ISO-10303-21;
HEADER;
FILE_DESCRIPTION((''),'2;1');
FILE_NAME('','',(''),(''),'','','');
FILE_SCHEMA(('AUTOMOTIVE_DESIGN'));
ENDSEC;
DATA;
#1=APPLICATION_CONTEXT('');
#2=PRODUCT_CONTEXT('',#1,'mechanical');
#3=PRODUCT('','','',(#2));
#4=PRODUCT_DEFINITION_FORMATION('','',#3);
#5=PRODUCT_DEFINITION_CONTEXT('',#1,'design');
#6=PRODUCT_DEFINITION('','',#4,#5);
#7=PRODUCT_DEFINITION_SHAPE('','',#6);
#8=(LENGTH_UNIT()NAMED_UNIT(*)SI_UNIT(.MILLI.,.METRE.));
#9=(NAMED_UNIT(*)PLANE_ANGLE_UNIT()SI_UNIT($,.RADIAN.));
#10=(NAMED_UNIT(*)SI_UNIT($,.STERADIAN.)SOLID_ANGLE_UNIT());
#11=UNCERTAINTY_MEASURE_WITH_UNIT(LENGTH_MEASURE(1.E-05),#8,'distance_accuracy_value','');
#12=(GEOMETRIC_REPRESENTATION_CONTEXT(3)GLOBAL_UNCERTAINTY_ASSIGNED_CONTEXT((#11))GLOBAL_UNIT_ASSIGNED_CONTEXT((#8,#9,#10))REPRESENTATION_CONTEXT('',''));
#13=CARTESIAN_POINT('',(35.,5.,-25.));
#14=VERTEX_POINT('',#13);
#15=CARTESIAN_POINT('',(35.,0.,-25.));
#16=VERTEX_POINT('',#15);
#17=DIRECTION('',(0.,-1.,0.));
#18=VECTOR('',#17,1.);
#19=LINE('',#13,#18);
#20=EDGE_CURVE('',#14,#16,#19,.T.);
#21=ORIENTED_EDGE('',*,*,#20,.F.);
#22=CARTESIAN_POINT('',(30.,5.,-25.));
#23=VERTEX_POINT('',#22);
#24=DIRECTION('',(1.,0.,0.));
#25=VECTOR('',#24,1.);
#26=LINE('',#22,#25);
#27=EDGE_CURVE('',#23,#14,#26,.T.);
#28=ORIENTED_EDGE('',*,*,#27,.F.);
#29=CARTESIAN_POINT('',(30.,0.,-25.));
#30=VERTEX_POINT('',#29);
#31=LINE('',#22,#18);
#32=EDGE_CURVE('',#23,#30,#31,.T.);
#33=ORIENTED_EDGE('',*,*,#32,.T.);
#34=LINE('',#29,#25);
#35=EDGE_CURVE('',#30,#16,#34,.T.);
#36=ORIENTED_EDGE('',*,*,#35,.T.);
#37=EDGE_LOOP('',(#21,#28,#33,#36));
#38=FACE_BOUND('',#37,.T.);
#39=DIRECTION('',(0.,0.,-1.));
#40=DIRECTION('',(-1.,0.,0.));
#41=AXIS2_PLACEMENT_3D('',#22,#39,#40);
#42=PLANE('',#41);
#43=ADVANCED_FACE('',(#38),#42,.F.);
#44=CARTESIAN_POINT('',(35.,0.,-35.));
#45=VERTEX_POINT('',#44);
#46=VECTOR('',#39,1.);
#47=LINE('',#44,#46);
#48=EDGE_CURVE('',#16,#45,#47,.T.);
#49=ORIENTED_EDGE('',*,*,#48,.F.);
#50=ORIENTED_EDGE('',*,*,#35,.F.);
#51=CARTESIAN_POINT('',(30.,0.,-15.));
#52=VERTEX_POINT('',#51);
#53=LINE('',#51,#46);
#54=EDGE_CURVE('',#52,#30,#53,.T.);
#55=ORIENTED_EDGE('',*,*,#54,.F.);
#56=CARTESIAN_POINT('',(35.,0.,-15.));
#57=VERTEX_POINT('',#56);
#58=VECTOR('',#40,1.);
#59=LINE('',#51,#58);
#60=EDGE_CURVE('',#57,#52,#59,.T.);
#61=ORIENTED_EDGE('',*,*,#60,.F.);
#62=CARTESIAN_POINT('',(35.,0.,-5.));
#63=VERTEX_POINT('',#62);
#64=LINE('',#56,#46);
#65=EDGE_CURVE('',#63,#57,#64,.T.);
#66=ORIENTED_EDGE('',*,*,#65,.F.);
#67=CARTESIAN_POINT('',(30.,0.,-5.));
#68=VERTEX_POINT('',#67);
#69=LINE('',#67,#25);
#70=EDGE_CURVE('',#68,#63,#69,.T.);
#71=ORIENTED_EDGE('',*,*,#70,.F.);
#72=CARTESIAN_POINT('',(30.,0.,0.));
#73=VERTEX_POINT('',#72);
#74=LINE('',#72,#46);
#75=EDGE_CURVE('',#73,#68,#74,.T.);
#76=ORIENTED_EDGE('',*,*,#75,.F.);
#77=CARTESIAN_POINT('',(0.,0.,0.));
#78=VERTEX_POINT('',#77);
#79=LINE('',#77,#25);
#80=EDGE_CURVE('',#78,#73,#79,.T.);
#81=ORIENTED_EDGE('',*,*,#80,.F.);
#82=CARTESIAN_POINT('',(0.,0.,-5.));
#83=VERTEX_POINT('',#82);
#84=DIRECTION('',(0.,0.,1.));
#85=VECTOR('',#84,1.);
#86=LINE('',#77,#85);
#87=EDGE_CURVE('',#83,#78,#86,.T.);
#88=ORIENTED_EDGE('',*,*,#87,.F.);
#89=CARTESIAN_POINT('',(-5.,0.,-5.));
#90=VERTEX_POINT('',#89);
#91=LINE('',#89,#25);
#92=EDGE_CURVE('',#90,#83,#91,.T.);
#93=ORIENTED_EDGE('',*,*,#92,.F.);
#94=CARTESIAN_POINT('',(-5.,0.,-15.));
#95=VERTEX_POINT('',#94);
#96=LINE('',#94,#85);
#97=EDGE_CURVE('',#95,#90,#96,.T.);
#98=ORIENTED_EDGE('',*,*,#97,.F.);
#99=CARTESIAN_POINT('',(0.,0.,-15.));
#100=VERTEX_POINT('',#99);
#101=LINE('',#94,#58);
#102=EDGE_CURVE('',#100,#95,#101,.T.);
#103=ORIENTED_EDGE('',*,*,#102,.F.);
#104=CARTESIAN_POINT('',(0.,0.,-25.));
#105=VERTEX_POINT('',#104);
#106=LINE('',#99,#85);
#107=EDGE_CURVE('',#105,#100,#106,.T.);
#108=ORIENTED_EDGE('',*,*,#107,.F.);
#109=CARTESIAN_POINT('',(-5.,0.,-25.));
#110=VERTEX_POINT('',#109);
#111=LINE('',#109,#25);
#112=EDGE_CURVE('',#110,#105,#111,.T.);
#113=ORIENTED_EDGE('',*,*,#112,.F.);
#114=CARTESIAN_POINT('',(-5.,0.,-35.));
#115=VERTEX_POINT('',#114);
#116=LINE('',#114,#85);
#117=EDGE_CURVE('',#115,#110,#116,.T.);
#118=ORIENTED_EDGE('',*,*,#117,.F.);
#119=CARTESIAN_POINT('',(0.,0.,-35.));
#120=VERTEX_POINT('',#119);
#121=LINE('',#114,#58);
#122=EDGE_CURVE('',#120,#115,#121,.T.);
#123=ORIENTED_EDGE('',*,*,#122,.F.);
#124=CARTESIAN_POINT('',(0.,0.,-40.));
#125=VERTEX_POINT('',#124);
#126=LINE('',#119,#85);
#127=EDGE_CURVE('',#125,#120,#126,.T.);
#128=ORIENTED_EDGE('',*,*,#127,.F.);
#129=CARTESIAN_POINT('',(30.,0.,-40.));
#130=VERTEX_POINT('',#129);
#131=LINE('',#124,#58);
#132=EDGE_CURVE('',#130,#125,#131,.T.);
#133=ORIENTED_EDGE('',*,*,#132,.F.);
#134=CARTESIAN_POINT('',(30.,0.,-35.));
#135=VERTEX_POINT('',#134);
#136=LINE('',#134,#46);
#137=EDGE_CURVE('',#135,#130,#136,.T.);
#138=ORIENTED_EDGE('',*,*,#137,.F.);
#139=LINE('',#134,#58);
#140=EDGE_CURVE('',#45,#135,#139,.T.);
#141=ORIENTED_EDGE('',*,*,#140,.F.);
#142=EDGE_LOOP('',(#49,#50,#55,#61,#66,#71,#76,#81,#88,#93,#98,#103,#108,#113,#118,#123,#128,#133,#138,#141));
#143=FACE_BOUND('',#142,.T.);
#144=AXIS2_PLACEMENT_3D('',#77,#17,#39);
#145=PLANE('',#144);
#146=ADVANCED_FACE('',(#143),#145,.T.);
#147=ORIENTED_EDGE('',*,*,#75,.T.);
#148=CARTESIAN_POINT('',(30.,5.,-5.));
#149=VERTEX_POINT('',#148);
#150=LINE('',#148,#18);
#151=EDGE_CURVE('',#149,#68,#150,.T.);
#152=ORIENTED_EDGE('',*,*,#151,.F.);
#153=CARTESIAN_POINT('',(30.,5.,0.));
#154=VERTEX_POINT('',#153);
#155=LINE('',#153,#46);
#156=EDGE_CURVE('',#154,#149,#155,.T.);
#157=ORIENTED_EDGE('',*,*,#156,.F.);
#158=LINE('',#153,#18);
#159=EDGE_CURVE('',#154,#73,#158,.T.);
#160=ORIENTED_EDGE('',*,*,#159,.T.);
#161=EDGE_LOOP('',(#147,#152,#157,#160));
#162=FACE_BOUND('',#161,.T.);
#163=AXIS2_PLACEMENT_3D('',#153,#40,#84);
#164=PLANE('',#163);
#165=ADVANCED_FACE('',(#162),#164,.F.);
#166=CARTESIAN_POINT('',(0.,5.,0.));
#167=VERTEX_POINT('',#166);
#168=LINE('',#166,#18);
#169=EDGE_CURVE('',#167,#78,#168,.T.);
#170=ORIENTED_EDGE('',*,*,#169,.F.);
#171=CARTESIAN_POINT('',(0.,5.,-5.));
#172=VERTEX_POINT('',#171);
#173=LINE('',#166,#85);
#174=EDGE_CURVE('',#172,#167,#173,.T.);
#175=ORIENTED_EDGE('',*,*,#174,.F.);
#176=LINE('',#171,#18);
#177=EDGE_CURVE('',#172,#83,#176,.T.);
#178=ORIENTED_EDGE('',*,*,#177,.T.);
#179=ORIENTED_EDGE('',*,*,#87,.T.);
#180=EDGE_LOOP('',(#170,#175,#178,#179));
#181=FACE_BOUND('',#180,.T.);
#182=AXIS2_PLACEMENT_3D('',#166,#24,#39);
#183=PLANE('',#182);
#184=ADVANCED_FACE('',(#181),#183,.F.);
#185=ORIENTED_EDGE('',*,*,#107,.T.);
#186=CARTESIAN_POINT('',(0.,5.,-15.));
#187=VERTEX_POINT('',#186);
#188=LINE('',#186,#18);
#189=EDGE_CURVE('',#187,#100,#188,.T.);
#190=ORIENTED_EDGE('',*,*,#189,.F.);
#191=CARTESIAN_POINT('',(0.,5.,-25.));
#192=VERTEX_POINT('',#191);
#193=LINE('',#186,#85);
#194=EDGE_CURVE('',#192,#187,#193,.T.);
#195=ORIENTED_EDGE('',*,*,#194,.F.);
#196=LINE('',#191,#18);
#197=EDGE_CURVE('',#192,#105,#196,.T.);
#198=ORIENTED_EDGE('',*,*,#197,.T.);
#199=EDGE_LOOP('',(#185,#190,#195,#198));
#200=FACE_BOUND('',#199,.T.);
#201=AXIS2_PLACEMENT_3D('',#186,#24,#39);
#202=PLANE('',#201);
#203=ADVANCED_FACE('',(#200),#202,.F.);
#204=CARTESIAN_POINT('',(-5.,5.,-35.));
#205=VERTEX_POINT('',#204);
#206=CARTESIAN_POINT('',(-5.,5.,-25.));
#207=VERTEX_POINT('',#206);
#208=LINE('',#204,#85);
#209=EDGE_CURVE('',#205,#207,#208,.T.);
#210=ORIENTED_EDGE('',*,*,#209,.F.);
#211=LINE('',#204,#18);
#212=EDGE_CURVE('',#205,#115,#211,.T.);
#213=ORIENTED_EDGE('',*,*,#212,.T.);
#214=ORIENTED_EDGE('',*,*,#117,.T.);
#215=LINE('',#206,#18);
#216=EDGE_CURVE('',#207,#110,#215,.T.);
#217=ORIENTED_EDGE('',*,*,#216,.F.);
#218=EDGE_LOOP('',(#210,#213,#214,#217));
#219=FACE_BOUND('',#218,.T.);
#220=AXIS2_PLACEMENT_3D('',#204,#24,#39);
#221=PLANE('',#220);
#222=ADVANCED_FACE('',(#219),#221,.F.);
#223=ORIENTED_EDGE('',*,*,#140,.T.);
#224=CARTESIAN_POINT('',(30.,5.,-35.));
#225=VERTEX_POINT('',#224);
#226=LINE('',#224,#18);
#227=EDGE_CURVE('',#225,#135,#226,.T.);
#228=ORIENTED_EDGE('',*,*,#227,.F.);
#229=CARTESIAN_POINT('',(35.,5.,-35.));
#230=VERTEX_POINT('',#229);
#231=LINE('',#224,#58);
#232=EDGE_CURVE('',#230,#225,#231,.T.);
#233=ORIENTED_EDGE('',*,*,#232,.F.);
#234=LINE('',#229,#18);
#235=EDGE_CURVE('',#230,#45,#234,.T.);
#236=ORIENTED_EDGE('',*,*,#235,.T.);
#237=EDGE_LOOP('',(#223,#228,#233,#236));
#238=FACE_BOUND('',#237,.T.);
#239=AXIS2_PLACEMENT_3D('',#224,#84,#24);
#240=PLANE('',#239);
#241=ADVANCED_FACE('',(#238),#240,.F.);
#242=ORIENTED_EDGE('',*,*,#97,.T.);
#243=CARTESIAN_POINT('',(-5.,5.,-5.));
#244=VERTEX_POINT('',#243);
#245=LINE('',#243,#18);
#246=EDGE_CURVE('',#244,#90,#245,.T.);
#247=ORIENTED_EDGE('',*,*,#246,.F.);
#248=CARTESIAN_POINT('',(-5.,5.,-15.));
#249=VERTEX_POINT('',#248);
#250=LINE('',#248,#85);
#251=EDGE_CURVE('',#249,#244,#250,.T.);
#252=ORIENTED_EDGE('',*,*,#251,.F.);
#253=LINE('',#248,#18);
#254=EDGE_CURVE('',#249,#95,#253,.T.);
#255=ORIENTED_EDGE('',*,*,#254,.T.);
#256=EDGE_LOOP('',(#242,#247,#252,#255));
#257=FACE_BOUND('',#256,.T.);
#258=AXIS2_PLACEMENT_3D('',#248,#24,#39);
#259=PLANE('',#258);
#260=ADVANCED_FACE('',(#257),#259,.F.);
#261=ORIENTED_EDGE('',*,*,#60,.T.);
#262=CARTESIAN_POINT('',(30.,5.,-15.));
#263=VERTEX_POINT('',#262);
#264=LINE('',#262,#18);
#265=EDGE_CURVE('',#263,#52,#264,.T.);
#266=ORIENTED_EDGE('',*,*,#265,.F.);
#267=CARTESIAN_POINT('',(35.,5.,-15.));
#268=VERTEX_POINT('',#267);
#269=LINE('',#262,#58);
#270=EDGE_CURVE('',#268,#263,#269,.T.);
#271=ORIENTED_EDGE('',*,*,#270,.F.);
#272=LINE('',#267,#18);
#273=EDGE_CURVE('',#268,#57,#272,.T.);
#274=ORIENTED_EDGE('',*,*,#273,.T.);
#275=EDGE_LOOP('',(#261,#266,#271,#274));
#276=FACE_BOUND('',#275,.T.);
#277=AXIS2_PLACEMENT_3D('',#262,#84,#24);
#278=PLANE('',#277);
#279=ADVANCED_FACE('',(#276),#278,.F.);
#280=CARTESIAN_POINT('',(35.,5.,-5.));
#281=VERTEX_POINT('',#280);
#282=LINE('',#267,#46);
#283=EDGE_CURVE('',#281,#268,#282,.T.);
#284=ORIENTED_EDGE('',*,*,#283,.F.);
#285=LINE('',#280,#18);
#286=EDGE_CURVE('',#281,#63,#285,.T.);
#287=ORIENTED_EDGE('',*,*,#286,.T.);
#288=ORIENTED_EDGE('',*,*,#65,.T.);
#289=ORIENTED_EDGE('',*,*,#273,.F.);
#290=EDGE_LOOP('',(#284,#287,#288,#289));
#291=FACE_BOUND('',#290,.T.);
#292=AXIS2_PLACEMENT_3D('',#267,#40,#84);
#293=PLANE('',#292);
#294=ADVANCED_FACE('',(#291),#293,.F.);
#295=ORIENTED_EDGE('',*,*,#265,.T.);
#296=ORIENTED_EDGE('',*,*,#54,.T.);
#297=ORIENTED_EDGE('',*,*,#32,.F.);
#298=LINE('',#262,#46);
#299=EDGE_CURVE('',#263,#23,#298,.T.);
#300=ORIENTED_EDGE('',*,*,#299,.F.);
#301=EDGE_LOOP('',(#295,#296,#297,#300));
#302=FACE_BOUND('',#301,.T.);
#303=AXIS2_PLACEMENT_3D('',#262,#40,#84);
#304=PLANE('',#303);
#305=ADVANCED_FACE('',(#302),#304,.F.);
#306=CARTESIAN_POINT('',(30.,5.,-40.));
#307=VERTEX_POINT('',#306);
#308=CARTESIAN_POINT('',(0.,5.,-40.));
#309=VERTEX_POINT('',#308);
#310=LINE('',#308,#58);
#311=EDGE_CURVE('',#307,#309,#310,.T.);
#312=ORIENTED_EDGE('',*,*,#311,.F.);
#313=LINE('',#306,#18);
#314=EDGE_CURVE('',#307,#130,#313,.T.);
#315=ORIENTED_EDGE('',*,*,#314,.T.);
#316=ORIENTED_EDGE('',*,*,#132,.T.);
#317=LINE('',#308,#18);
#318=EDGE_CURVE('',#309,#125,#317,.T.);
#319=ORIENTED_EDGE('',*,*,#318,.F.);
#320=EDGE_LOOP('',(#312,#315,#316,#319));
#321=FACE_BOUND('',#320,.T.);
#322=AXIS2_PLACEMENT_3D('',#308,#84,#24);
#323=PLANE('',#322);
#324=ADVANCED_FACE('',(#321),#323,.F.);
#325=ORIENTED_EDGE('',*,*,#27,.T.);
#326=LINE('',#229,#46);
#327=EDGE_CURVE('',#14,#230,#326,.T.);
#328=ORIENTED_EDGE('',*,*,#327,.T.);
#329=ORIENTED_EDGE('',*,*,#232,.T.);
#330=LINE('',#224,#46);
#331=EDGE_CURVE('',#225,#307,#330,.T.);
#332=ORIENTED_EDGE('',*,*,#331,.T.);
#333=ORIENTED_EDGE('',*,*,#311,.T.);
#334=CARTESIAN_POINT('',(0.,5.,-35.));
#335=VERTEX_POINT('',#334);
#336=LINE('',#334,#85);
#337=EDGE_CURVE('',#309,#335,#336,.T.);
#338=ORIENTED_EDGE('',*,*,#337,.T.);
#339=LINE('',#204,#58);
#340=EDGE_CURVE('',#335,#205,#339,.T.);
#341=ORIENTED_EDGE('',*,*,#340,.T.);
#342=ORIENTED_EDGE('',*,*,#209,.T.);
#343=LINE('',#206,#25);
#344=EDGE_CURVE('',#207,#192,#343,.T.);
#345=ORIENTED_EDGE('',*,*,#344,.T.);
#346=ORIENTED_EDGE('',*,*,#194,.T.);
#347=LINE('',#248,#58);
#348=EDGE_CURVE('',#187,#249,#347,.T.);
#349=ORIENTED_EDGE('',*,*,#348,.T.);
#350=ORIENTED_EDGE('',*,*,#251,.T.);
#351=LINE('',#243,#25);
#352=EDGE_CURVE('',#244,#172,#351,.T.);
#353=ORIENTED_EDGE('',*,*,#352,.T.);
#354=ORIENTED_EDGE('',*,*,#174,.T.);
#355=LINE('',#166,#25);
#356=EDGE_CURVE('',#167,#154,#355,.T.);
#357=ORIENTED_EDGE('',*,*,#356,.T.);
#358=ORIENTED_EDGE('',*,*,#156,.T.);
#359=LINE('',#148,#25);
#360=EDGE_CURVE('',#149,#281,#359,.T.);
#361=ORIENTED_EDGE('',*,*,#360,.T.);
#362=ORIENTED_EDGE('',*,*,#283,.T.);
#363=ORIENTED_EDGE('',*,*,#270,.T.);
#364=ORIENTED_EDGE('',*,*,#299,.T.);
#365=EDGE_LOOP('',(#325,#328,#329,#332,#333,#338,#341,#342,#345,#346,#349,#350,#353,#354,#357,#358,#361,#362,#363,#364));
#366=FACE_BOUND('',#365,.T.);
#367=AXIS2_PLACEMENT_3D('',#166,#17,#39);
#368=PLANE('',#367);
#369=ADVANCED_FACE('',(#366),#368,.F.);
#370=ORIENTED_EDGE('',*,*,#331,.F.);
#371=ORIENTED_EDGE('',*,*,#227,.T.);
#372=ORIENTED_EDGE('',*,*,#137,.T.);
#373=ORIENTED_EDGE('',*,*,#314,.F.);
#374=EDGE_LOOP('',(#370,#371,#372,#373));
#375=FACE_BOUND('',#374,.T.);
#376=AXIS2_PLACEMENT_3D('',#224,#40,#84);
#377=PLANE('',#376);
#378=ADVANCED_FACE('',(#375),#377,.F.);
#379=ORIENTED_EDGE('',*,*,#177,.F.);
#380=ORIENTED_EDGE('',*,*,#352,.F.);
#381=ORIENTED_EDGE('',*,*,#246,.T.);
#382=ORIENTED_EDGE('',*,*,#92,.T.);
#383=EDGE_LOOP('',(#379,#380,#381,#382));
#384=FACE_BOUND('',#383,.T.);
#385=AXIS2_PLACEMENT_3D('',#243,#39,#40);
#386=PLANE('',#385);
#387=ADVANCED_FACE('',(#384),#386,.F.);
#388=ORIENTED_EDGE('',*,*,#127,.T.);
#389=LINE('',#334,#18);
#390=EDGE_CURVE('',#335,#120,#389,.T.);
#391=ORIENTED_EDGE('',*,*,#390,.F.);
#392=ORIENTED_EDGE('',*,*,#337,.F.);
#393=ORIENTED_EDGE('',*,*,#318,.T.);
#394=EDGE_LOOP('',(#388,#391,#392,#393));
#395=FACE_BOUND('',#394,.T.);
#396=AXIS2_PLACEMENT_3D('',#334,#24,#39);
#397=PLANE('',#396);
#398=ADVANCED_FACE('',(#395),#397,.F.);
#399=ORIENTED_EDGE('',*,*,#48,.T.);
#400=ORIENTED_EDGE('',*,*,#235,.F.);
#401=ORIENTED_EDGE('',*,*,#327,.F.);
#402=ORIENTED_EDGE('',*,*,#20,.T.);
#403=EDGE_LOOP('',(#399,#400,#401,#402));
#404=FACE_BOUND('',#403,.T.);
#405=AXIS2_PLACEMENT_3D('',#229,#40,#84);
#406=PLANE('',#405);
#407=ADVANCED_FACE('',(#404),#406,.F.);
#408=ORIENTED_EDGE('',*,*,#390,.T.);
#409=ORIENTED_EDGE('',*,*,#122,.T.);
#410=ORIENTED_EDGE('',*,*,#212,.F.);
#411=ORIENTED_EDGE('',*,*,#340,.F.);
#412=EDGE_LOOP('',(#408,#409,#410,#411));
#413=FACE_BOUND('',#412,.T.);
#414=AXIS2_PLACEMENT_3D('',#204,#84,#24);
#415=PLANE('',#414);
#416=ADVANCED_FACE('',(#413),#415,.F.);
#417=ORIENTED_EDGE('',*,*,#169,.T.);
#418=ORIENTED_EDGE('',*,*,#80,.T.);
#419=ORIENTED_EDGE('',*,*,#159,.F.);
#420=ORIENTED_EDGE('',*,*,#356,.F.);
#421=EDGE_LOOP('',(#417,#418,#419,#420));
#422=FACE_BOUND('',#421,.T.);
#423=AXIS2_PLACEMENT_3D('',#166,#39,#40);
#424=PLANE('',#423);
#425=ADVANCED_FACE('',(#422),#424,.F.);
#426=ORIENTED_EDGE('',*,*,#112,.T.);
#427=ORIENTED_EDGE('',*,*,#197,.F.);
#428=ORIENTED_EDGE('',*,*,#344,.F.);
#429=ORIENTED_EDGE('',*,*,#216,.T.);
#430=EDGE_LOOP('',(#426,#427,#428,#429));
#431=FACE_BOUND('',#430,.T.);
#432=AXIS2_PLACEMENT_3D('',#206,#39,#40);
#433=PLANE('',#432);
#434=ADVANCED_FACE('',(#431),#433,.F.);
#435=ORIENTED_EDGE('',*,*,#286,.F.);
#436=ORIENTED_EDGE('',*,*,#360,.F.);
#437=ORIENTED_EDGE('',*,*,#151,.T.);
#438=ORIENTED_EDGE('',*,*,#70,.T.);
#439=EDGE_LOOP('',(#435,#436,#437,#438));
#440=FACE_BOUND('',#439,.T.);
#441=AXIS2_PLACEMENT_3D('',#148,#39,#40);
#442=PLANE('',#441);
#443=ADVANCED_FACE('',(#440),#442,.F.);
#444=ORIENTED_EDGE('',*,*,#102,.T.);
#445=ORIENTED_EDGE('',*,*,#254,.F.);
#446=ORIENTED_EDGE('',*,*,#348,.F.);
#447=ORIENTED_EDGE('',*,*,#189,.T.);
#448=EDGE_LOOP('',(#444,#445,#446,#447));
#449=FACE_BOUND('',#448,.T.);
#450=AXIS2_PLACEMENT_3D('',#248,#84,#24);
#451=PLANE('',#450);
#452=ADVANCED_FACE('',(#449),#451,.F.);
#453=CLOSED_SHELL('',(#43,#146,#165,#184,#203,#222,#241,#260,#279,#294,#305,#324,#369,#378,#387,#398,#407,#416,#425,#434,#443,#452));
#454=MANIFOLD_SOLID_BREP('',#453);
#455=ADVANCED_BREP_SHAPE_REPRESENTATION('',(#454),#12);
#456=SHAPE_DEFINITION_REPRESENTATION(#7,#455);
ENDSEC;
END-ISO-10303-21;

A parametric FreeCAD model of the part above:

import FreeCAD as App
import Part
import Sketcher

V = App.Vector
Q = App.Units.Quantity

doc = App.newDocument("Part")
params = doc.addObject("Spreadsheet::Sheet", "Params")
for row, (alias, value) in enumerate([
    ("sketch1_width", "30 mm"),
    ("sketch1_width2", "5 mm"),
    ("sketch1_height", "10 mm"),
    ("pad1_length", "5 mm"),
], start=1):
    params.set(f"A{row}", alias)
    params.set(f"B{row}", "=" + value)
    params.setAlias(f"B{row}", alias)

body = doc.addObject("PartDesign::Body", "Body")

sketch1 = doc.addObject("Sketcher::SketchObject", "Sketch")
body.addObject(sketch1)
sketch1.AttachmentSupport = (doc.XZ_Plane, [""])
sketch1.MapMode = "FlatFace"
sketch1.addGeometry(Part.LineSegment(V(0, 0, 0), V(30, 0, 0)), False)
sketch1.addGeometry(Part.LineSegment(V(30, 0, 0), V(30, -5, 0)), False)
sketch1.addGeometry(Part.LineSegment(V(30, -5, 0), V(35, -5, 0)), False)
sketch1.addGeometry(Part.LineSegment(V(35, -5, 0), V(35, -15, 0)), False)
sketch1.addGeometry(Part.LineSegment(V(35, -15, 0), V(30, -15, 0)), False)
sketch1.addGeometry(Part.LineSegment(V(30, -15, 0), V(30, -25, 0)), False)
sketch1.addGeometry(Part.LineSegment(V(30, -25, 0), V(35, -25, 0)), False)
sketch1.addGeometry(Part.LineSegment(V(35, -25, 0), V(35, -35, 0)), False)
sketch1.addGeometry(Part.LineSegment(V(35, -35, 0), V(30, -35, 0)), False)
sketch1.addGeometry(Part.LineSegment(V(30, -35, 0), V(30, -40, 0)), False)
sketch1.addGeometry(Part.LineSegment(V(30, -40, 0), V(0, -40, 0)), False)
sketch1.addGeometry(Part.LineSegment(V(0, -40, 0), V(0, -35, 0)), False)
sketch1.addGeometry(Part.LineSegment(V(0, -35, 0), V(-5, -35, 0)), False)
sketch1.addGeometry(Part.LineSegment(V(-5, -35, 0), V(-5, -25, 0)), False)
sketch1.addGeometry(Part.LineSegment(V(-5, -25, 0), V(0, -25, 0)), False)
sketch1.addGeometry(Part.LineSegment(V(0, -25, 0), V(0, -15, 0)), False)
sketch1.addGeometry(Part.LineSegment(V(0, -15, 0), V(-5, -15, 0)), False)
sketch1.addGeometry(Part.LineSegment(V(-5, -15, 0), V(-5, -5, 0)), False)
sketch1.addGeometry(Part.LineSegment(V(-5, -5, 0), V(0, -5, 0)), False)
sketch1.addGeometry(Part.LineSegment(V(0, -5, 0), V(0, 0, 0)), False)
sketch1.addConstraint(Sketcher.Constraint("Coincident", 0, 2, 1, 1))
sketch1.addConstraint(Sketcher.Constraint("Coincident", 1, 2, 2, 1))
sketch1.addConstraint(Sketcher.Constraint("Coincident", 2, 2, 3, 1))
sketch1.addConstraint(Sketcher.Constraint("Coincident", 3, 2, 4, 1))
sketch1.addConstraint(Sketcher.Constraint("Coincident", 4, 2, 5, 1))
sketch1.addConstraint(Sketcher.Constraint("Coincident", 5, 2, 6, 1))
sketch1.addConstraint(Sketcher.Constraint("Coincident", 6, 2, 7, 1))
sketch1.addConstraint(Sketcher.Constraint("Coincident", 7, 2, 8, 1))
sketch1.addConstraint(Sketcher.Constraint("Coincident", 8, 2, 9, 1))
sketch1.addConstraint(Sketcher.Constraint("Coincident", 9, 2, 10, 1))
sketch1.addConstraint(Sketcher.Constraint("Coincident", 10, 2, 11, 1))
sketch1.addConstraint(Sketcher.Constraint("Coincident", 11, 2, 12, 1))
sketch1.addConstraint(Sketcher.Constraint("Coincident", 12, 2, 13, 1))
sketch1.addConstraint(Sketcher.Constraint("Coincident", 13, 2, 14, 1))
sketch1.addConstraint(Sketcher.Constraint("Coincident", 14, 2, 15, 1))
sketch1.addConstraint(Sketcher.Constraint("Coincident", 15, 2, 16, 1))
sketch1.addConstraint(Sketcher.Constraint("Coincident", 16, 2, 17, 1))
sketch1.addConstraint(Sketcher.Constraint("Coincident", 17, 2, 18, 1))
sketch1.addConstraint(Sketcher.Constraint("Coincident", 18, 2, 19, 1))
sketch1.addConstraint(Sketcher.Constraint("Coincident", 19, 2, 0, 1))
sketch1.addConstraint(Sketcher.Constraint("Horizontal", 0))
sketch1.addConstraint(Sketcher.Constraint("Vertical", 1))
sketch1.addConstraint(Sketcher.Constraint("Horizontal", 2))
sketch1.addConstraint(Sketcher.Constraint("Vertical", 3))
sketch1.addConstraint(Sketcher.Constraint("Horizontal", 4))
sketch1.addConstraint(Sketcher.Constraint("Vertical", 5))
sketch1.addConstraint(Sketcher.Constraint("Horizontal", 6))
sketch1.addConstraint(Sketcher.Constraint("Vertical", 7))
sketch1.addConstraint(Sketcher.Constraint("Horizontal", 8))
sketch1.addConstraint(Sketcher.Constraint("Vertical", 9))
sketch1.addConstraint(Sketcher.Constraint("Horizontal", 10))
sketch1.addConstraint(Sketcher.Constraint("Vertical", 11))
sketch1.addConstraint(Sketcher.Constraint("Horizontal", 12))
sketch1.addConstraint(Sketcher.Constraint("Vertical", 13))
sketch1.addConstraint(Sketcher.Constraint("Horizontal", 14))
sketch1.addConstraint(Sketcher.Constraint("Vertical", 15))
sketch1.addConstraint(Sketcher.Constraint("Horizontal", 16))
sketch1.addConstraint(Sketcher.Constraint("Vertical", 17))
sketch1.addConstraint(Sketcher.Constraint("Horizontal", 18))
sketch1.addConstraint(Sketcher.Constraint("Vertical", 19))
sketch1.addConstraint(Sketcher.Constraint("Coincident", 19, 2, -1, 1))
sketch1.addConstraint(Sketcher.Constraint("PointOnObject", 10, 2, -2))
sketch1.addConstraint(Sketcher.Constraint("PointOnObject", 14, 2, -2))
sketch1.addConstraint(Sketcher.Constraint("Horizontal", 8, 2, 11, 2))
sketch1.addConstraint(Sketcher.Constraint("Horizontal", 6, 2, 13, 2))
sketch1.addConstraint(Sketcher.Constraint("Horizontal", 4, 2, 15, 2))
sketch1.addConstraint(Sketcher.Constraint("Horizontal", 2, 2, 17, 2))
sketch1.addConstraint(Sketcher.Constraint("Vertical", 1, 2, 4, 2))
sketch1.addConstraint(Sketcher.Constraint("Vertical", 3, 2, 6, 2))
sketch1.addConstraint(Sketcher.Constraint("Vertical", 5, 2, 8, 2))
sketch1.addConstraint(Sketcher.Constraint("Vertical", 13, 2, 16, 2))
sketch1.addConstraint(Sketcher.Constraint("Equal", 8, 12))
sketch1.addConstraint(Sketcher.Constraint("Equal", 18, 1))
sketch1.addConstraint(Sketcher.Constraint("Equal", 3, 5))
sketch1.addConstraint(Sketcher.Constraint("Equal", 5, 7))
sketch1.addConstraint(Sketcher.Constraint("Equal", 1, 9))
sketch1.addConstraint(Sketcher.Constraint("DistanceX", 0, 1, 0, 2, Q("30 mm")))
sketch1.addConstraint(Sketcher.Constraint("DistanceX", 2, 1, 2, 2, Q("5 mm")))
sketch1.addConstraint(Sketcher.Constraint("DistanceY", 3, 2, 3, 1, Q("10 mm")))
sketch1.setExpression("Constraints[56]", "Params.sketch1_width")
sketch1.setExpression("Constraints[57]", "Params.sketch1_width2")
sketch1.setExpression("Constraints[58]", "Params.sketch1_height")
pad1 = doc.addObject("PartDesign::Pad", "Pad")
body.addObject(pad1)
pad1.Profile = sketch1
pad1.setExpression("Length", "Params.pad1_length")
pad1.Reversed = True

doc.recompute()
